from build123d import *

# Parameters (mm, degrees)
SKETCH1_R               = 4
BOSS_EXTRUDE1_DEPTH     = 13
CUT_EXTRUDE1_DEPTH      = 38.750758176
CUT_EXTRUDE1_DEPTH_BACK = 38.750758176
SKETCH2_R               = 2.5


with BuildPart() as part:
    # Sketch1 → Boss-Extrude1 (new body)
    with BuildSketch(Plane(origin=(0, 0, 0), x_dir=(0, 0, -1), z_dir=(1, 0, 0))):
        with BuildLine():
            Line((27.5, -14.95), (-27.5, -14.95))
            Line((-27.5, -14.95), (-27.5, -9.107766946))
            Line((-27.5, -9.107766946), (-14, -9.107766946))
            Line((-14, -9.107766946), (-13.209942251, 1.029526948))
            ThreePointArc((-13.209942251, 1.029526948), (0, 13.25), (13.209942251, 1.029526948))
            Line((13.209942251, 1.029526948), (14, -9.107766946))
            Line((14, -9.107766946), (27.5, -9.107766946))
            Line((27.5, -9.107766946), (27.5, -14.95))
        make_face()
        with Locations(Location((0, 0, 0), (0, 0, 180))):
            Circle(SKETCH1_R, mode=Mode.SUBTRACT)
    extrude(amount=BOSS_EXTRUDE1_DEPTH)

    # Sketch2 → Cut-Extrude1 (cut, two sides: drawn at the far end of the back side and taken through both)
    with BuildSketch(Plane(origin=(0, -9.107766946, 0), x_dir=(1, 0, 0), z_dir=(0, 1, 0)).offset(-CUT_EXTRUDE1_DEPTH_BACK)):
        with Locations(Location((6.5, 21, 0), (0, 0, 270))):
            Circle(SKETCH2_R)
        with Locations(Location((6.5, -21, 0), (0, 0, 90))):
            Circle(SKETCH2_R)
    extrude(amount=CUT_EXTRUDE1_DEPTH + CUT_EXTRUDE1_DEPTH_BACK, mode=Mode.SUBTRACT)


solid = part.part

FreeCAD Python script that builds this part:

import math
import FreeCAD as App
import Part
import Sketcher

V = App.Vector
Q = App.Units.Quantity

doc = App.newDocument("Part")
body = doc.addObject("PartDesign::Body", "Body")

# Sketch on YZ plane
sketch1 = body.newObject("Sketcher::SketchObject", "Sketch")
sketch1.AttachmentSupport = (doc.getObject("YZ_Plane"), [""])
sketch1.MapMode = "FlatFace"
sketch1.addGeometry(Part.LineSegment(V(-14.95, 27.5, 0), V(-14.95, -27.5, 0)), False)
sketch1.addGeometry(Part.LineSegment(V(-14.95, -27.5, 0), V(-9.107767, -27.5, 0)), False)
sketch1.addGeometry(Part.LineSegment(V(-9.107767, -27.5, 0), V(-9.107767, -14, 0)), False)
sketch1.addGeometry(Part.LineSegment(V(-9.107767, -14, 0), V(1.029527, -13.209942, 0)), False)
sketch1.addGeometry(Part.ArcOfCircle(Part.Circle(V(0, 0, 0), V(0, 0, 1), 13.25), math.radians(-85.543618), math.radians(85.543618)), False)
sketch1.addGeometry(Part.LineSegment(V(1.029527, 13.209942, 0), V(-9.107767, 14, 0)), False)
sketch1.addGeometry(Part.LineSegment(V(-9.107767, 14, 0), V(-9.107767, 27.5, 0)), False)
sketch1.addGeometry(Part.LineSegment(V(-9.107767, 27.5, 0), V(-14.95, 27.5, 0)), False)
sketch1.addGeometry(Part.Circle(V(0, 0, 0), V(0, 0, 1), 4), False)
sketch1.addConstraint(Sketcher.Constraint("Coincident", 0, 2, 1, 1))
sketch1.addConstraint(Sketcher.Constraint("Coincident", 1, 2, 2, 1))
sketch1.addConstraint(Sketcher.Constraint("Coincident", 2, 2, 3, 1))
sketch1.addConstraint(Sketcher.Constraint("Tangent", 3, 2, 4, 1))
sketch1.addConstraint(Sketcher.Constraint("Tangent", 4, 2, 5, 1))
sketch1.addConstraint(Sketcher.Constraint("Coincident", 5, 2, 6, 1))
sketch1.addConstraint(Sketcher.Constraint("Coincident", 6, 2, 7, 1))
sketch1.addConstraint(Sketcher.Constraint("Coincident", 7, 2, 0, 1))
sketch1.addConstraint(Sketcher.Constraint("Vertical", 0))
sketch1.addConstraint(Sketcher.Constraint("Horizontal", 1))
sketch1.addConstraint(Sketcher.Constraint("Vertical", 2))
sketch1.addConstraint(Sketcher.Constraint("Vertical", 6))
sketch1.addConstraint(Sketcher.Constraint("Horizontal", 7))
sketch1.addConstraint(Sketcher.Constraint("Coincident", 4, 3, -1, 1))
sketch1.addConstraint(Sketcher.Constraint("Coincident", 8, 3, -1, 1))
sketch1.addConstraint(Sketcher.Constraint("Symmetric", 2, 2, 5, 2, -1))
sketch1.addConstraint(Sketcher.Constraint("Equal", 2, 6))
sketch1.addConstraint(Sketcher.Constraint("Diameter", 8, Q("8 mm")))
sketch1.addConstraint(Sketcher.Constraint("DistanceY", 0, 2, 0, 1, Q("55 mm")))
sketch1.addConstraint(Sketcher.Constraint("Radius", 4, Q("13.25 mm")))
sketch1.addConstraint(Sketcher.Constraint("DistanceY", 2, 1, 2, 2, Q("13.5 mm")))
sketch1.addConstraint(Sketcher.Constraint("DistanceX", 0, 2, -1, 1, Q("14.95 mm")))
sketch1.addConstraint(Sketcher.Constraint("DistanceX", 1, 1, 1, 2, Q("5.842233 mm")))
pad1 = body.newObject("PartDesign::Pad", "Pad")
pad1.Profile = sketch1
pad1.Length = 13

# Sketch on XZ plane
sketch2 = body.newObject("Sketcher::SketchObject", "Sketch001")
sketch2.AttachmentSupport = (doc.getObject("XZ_Plane"), [""])
sketch2.MapMode = "FlatFace"
sketch2.AttachmentOffset = App.Placement(V(0, 0, 9.107767), App.Rotation())
sketch2.addGeometry(Part.Circle(V(6.5, -21, 0), V(0, 0, 1), 2.5), False)
sketch2.addGeometry(Part.Circle(V(6.5, 21, 0), V(0, 0, 1), 2.5), False)
sketch2.addConstraint(Sketcher.Constraint("Equal", 0, 1))
sketch2.addConstraint(Sketcher.Constraint("Symmetric", 0, 3, 1, 3, -1))
sketch2.addConstraint(Sketcher.Constraint("Diameter", 0, Q("5 mm")))
sketch2.addConstraint(Sketcher.Constraint("DistanceY", 0, 3, -1, 1, Q("21 mm")))
sketch2.addConstraint(Sketcher.Constraint("DistanceX", -1, 1, 0, 3, Q("6.5 mm")))
pocket1 = body.newObject("PartDesign::Pocket", "Pocket")
pocket1.Profile = sketch2
pocket1.Type = "ThroughAll"
pocket1.Midplane = True

doc.recompute()
